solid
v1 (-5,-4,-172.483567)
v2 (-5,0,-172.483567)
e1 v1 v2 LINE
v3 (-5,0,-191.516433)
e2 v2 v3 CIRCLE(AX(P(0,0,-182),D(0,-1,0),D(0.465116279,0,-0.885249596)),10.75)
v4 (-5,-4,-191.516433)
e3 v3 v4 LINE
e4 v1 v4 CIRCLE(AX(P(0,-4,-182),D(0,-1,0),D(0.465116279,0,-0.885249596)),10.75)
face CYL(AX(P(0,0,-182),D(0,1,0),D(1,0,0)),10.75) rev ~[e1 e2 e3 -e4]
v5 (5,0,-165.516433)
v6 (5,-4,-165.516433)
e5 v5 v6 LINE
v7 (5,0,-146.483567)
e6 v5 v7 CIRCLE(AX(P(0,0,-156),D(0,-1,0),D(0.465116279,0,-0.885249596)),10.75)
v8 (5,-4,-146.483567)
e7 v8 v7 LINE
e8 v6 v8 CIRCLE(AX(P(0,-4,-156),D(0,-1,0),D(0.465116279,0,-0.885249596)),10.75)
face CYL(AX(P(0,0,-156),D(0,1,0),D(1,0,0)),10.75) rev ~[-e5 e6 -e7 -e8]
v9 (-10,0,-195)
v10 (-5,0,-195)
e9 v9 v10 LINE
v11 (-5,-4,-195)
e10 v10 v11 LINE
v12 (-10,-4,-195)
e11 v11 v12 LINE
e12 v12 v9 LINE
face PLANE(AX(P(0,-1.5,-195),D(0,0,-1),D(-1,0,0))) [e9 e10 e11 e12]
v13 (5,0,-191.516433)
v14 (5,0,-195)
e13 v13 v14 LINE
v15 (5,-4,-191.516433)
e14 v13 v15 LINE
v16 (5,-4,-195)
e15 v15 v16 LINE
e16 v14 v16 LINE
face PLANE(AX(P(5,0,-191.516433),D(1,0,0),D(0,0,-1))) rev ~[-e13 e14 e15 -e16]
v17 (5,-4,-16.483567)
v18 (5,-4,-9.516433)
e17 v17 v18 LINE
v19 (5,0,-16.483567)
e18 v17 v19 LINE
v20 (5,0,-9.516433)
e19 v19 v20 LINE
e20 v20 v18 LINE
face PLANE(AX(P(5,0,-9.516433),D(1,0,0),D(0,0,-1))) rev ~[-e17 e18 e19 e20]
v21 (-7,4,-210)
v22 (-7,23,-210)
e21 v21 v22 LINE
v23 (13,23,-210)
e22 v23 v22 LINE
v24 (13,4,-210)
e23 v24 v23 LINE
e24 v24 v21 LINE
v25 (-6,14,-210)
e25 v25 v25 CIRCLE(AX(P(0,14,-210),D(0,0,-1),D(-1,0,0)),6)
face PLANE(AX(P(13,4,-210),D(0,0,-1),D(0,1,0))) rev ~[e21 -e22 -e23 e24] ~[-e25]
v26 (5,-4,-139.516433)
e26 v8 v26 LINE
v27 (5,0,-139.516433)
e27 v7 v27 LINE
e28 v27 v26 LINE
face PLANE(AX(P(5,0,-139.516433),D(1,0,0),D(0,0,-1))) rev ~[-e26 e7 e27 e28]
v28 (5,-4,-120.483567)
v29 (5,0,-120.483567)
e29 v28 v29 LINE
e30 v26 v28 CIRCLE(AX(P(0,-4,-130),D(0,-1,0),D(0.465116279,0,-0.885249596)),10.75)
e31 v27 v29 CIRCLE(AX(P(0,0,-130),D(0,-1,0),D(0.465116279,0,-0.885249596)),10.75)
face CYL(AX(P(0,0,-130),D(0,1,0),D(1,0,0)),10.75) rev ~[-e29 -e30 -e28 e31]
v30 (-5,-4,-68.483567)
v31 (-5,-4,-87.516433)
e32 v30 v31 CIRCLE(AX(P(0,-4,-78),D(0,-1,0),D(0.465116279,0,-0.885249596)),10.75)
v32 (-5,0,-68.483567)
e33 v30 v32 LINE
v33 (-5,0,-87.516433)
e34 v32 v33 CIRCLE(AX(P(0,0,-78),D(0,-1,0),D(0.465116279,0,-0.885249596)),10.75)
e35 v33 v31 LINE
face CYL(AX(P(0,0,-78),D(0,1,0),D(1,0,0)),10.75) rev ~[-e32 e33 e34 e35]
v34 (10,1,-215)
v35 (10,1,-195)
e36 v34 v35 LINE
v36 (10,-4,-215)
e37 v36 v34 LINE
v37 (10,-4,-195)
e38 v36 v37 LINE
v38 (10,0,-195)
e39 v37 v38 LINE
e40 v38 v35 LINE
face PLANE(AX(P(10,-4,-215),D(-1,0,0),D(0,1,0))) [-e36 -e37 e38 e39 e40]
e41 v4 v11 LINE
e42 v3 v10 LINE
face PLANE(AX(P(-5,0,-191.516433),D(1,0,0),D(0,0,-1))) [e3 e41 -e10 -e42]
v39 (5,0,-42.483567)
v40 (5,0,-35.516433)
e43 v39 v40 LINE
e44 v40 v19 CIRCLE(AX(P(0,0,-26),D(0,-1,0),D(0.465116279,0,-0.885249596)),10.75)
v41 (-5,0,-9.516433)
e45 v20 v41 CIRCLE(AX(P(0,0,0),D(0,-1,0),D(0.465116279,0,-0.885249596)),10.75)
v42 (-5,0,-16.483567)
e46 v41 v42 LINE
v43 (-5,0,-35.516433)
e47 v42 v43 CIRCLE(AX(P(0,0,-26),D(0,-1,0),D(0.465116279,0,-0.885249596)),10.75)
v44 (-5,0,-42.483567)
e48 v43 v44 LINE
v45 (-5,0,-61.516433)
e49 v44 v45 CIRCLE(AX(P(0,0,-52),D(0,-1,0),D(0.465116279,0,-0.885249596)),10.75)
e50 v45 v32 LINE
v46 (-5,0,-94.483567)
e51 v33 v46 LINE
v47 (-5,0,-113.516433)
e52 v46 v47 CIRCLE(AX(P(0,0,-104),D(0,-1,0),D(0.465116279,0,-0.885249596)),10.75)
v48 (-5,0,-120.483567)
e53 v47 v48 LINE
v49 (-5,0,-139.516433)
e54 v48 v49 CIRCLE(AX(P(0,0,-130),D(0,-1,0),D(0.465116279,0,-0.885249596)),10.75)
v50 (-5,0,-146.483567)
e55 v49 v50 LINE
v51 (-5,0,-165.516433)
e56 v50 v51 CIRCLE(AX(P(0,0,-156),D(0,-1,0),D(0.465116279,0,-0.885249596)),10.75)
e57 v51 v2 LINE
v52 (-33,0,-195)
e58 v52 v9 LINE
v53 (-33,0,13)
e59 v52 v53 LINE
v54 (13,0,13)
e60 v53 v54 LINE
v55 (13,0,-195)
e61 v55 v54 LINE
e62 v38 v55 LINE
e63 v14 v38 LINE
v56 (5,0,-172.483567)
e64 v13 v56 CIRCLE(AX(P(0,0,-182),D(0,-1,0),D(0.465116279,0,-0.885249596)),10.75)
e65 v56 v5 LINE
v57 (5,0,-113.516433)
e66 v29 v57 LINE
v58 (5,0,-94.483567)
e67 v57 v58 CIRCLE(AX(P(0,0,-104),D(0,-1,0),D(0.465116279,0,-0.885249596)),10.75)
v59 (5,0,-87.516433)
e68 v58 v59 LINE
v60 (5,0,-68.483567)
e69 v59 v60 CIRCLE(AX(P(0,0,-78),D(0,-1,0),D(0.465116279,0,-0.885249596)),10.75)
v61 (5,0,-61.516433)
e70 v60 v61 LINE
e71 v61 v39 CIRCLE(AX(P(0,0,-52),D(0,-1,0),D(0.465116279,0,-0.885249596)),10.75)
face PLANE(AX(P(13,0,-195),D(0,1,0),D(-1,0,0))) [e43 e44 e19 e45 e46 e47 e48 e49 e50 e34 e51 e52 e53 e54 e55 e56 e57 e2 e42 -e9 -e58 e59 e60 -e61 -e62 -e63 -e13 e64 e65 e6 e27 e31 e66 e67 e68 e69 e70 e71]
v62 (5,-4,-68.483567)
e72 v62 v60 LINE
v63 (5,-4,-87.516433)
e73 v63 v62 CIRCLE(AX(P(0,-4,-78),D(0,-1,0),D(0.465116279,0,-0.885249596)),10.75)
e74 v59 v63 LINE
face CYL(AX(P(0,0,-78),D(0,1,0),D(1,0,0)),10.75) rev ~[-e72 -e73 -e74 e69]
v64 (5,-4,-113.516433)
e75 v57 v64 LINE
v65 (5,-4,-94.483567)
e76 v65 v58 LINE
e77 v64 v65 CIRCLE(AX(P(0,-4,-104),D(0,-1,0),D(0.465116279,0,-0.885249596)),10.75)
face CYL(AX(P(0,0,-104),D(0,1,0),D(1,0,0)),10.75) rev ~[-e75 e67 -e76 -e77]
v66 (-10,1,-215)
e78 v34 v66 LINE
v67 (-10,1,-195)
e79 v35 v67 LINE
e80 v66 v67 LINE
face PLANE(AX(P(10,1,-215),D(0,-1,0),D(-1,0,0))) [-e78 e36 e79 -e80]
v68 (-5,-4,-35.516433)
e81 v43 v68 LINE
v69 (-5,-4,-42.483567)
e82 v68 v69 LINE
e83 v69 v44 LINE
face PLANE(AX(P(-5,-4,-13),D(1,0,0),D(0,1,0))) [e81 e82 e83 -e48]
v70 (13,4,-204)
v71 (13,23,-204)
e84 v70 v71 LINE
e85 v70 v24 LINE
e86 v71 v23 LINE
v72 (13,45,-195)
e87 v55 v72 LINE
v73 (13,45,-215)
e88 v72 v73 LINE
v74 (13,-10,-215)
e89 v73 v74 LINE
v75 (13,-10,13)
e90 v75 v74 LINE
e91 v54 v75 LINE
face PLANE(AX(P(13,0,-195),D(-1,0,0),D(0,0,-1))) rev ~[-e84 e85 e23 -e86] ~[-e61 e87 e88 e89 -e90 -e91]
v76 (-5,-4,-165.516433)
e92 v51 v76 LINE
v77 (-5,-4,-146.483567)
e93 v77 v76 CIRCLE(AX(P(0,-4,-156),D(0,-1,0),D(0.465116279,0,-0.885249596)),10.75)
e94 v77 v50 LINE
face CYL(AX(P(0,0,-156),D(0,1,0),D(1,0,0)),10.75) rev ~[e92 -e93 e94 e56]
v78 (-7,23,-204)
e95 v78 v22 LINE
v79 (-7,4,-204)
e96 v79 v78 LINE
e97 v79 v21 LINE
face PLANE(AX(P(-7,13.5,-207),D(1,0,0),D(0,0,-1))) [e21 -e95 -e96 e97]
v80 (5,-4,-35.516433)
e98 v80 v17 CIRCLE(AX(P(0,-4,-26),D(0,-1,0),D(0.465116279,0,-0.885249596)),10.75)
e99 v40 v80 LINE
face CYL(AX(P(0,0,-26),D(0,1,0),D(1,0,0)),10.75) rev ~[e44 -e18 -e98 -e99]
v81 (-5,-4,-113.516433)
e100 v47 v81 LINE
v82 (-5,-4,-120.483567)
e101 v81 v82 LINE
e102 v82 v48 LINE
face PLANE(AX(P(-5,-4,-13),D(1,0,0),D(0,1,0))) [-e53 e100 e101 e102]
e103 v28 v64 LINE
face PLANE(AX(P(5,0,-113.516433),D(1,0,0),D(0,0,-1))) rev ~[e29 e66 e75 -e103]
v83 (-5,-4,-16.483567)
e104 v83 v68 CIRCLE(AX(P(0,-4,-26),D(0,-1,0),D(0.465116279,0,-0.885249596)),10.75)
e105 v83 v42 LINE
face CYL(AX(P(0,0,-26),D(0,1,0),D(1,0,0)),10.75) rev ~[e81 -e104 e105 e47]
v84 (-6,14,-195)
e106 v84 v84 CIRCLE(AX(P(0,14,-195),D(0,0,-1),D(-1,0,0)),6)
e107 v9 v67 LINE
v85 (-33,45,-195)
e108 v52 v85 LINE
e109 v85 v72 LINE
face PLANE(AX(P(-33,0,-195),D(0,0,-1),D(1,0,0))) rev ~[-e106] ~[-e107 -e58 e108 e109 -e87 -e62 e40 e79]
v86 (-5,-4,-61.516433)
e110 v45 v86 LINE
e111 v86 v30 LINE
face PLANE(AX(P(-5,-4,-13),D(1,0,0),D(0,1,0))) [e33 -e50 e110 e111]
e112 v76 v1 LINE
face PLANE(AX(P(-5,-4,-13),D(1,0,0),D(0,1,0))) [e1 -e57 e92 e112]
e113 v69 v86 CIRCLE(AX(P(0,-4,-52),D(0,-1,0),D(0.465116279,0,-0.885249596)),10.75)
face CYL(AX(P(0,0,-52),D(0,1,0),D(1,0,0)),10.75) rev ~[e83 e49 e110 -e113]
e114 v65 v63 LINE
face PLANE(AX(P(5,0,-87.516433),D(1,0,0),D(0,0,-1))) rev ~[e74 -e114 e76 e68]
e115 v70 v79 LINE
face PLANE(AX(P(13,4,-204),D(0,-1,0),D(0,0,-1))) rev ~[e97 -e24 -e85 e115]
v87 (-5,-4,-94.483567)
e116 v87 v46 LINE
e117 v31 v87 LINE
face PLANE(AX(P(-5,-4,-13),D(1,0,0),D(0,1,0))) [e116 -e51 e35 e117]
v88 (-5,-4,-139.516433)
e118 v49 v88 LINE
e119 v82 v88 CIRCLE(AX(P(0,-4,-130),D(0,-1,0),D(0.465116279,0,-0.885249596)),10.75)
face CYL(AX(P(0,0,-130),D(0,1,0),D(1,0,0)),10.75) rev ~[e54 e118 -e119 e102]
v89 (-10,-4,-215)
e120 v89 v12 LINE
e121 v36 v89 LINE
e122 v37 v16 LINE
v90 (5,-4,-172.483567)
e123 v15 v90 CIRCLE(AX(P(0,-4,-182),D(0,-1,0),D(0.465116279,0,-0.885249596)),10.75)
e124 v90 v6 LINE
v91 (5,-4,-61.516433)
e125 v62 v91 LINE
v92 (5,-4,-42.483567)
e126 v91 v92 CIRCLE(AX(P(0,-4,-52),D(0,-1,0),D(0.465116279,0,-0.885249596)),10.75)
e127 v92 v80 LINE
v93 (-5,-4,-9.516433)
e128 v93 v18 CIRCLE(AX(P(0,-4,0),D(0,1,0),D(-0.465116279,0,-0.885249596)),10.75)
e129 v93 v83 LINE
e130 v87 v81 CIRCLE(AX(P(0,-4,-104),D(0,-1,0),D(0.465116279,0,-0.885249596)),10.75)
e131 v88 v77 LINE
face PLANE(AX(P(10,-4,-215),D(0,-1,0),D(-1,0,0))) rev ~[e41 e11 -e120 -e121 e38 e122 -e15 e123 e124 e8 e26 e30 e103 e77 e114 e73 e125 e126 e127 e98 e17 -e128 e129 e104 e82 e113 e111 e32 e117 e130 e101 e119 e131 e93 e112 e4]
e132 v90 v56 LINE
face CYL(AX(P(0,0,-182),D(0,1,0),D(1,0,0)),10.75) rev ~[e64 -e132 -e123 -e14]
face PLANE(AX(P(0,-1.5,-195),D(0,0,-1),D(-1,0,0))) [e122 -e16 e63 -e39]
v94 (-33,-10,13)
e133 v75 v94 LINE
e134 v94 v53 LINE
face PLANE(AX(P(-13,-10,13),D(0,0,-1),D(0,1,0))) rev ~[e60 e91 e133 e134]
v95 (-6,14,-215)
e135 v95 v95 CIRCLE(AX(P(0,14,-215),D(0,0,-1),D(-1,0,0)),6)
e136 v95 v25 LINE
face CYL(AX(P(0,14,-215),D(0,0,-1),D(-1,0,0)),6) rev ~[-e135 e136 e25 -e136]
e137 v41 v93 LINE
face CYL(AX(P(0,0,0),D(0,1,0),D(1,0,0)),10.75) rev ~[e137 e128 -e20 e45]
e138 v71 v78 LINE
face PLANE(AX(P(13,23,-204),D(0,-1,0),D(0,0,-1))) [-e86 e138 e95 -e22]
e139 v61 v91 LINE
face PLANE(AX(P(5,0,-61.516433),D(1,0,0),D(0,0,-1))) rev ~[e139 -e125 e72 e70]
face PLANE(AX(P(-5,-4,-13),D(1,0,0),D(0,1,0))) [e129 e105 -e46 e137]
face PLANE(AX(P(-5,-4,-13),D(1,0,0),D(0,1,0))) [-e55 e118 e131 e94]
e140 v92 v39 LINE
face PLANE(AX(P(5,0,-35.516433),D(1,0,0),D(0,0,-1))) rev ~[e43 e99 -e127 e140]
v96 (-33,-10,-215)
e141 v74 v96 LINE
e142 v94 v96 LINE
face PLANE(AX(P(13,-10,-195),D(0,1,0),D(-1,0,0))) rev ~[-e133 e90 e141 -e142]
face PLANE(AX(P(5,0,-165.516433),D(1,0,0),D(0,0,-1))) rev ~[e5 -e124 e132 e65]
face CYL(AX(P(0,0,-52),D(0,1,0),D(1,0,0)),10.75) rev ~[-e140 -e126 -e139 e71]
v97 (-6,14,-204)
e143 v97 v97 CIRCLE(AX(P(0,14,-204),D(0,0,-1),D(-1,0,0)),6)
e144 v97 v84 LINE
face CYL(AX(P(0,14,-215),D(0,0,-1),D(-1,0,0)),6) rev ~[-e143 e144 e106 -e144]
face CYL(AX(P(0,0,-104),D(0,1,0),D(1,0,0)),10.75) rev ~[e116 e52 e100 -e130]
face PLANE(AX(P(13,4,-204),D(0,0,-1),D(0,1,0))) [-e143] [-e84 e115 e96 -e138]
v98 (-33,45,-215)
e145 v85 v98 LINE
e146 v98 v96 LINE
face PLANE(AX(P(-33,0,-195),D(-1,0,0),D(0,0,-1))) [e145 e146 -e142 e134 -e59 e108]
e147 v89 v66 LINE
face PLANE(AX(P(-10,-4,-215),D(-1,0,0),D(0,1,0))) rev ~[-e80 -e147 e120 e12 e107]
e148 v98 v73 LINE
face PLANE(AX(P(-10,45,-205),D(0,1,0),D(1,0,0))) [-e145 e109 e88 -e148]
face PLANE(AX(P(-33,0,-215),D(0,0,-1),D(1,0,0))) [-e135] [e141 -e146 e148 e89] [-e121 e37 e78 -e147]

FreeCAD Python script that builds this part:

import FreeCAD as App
import Part
import Sketcher

V = App.Vector
Q = App.Units.Quantity


def add_polygon(sketch, points):
    """Adds a closed chain of lines whose ends are joined by coincident constraints."""
    first, n = sketch.GeometryCount, len(points)
    for a, b in zip(points, points[1:] + points[:1]):
        sketch.addGeometry(Part.LineSegment(App.Vector(*a, 0), App.Vector(*b, 0)), False)
    for i in range(n):
        sketch.addConstraint(Sketcher.Constraint("Coincident", first + i, 2, first + (i + 1) % n, 1))

doc = App.newDocument("Part")
params = doc.addObject("Spreadsheet::Sheet", "Params")
for row, (alias, value) in enumerate([
    ("sketch1_width", "26 mm"),
    ("pad1_length", "10 mm"),
    ("sketch2_diameter", "21.5 mm"),
    ("pocket1_length", "4 mm"),
    ("sketch3_width", "10 mm"),
    ("pocket2_length", "4 mm"),
    ("linearpattern_pitch", "26 mm"),
    ("sketch4_width", "10 mm"),
    ("sketch4_height", "4 mm"),
    ("sketch5_width", "10 mm"),
    ("sketch5_height", "208 mm"),
    ("pad2_length", "20 mm"),
    ("sketch6_width", "46 mm"),
    ("sketch6_height", "10 mm"),
    ("pad3_length", "20 mm"),
    ("sketch7_width", "46 mm"),
    ("sketch7_height", "20 mm"),
    ("pad4_length", "45 mm"),
    ("sketch8_width", "20 mm"),
    ("sketch8_height", "5 mm"),
    ("pocket4_length", "20 mm"),
    ("sketch9_diameter", "12 mm"),
    ("pocket5_length", "45 mm"),
    ("sketch10_width", "19 mm"),
    ("sketch10_height", "6 mm"),
    ("pocket6_length", "20 mm"),
], start=1):
    params.set(f"A{row}", alias)
    params.set(f"B{row}", "=" + value)
    params.setAlias(f"B{row}", alias)

body = doc.addObject("PartDesign::Body", "Body")

# Sketch on XZ plane
sketch1 = body.newObject("Sketcher::SketchObject", "Sketch")
sketch1.AttachmentSupport = (doc.getObject("XZ_Plane"), [""])
sketch1.MapMode = "FlatFace"
add_polygon(sketch1, [(-13, -13), (-13, 13), (13, 13), (13, -13)])  # lines 0-3
sketch1.addConstraint([
    Sketcher.Constraint("Vertical", 0),
    Sketcher.Constraint("Horizontal", 1),
    Sketcher.Constraint("Vertical", 2),
    Sketcher.Constraint("Horizontal", 3),
    Sketcher.Constraint("Symmetric", 0, 2, 2, 2, -1, 1),
    Sketcher.Constraint("Equal", 3, 0),
    Sketcher.Constraint("DistanceX", 1, 1, 1, 2, Q("26 mm")),
])
sketch1.setExpression("Constraints[10]", "Params.sketch1_width")
pad1 = body.newObject("PartDesign::Pad", "Pad")
pad1.Profile = sketch1
pad1.setExpression("Length", "Params.pad1_length")

# Sketch on XZ plane
sketch2 = body.newObject("Sketcher::SketchObject", "Sketch001")
sketch2.AttachmentSupport = (doc.getObject("XZ_Plane"), [""])
sketch2.MapMode = "FlatFace"
sketch2.addGeometry(Part.Circle(V(0, 0, 0), V(0, 0, 1), 11), False)
sketch2.addConstraint([
    Sketcher.Constraint("Coincident", 0, 3, -1, 1),
    Sketcher.Constraint("Diameter", 0, Q("21.5 mm")),
])
sketch2.setExpression("Constraints[1]", "Params.sketch2_diameter")
pocket1 = body.newObject("PartDesign::Pocket", "Pocket")
pocket1.Profile = sketch2
pocket1.setExpression("Length", "Params.pocket1_length")
pocket1.Reversed = True

# Sketch on XZ plane
sketch3 = body.newObject("Sketcher::SketchObject", "Sketch002")
sketch3.AttachmentSupport = (doc.getObject("XZ_Plane"), [""])
sketch3.MapMode = "FlatFace"
add_polygon(sketch3, [(-5, -13), (-5, -9.5), (5, -9.5), (5, -13)])  # lines 0-3
sketch3.addConstraint([
    Sketcher.Constraint("Vertical", 0),
    Sketcher.Constraint("Horizontal", 1),
    Sketcher.Constraint("Vertical", 2),
    Sketcher.Constraint("Horizontal", 3),
    Sketcher.Constraint("DistanceX", 1, 1, 1, 2, Q("10 mm")),
    Sketcher.Constraint("DistanceX", 0, 2, -1, 1, Q("5 mm")),
    Sketcher.Constraint("DistanceY", 2, 2, -1, 1, Q("13 mm")),
    Sketcher.Constraint("DistanceY", 0, 1, 0, 2, Q("3.483567 mm")),
])
sketch3.setExpression("Constraints[8]", "Params.sketch3_width")
pocket2 = body.newObject("PartDesign::Pocket", "Pocket001")
pocket2.Profile = sketch3
pocket2.setExpression("Length", "Params.pocket2_length")
pocket2.Reversed = True
doc.recompute()

linearpattern = body.newObject("PartDesign::LinearPattern", "LinearPattern")
linearpattern.Originals = [pad1, pocket1, pocket2]
linearpattern.Direction = (doc.getObject("Z_Axis"), [""])
linearpattern.Mode = "offset"
linearpattern.setExpression("Offset", "Params.linearpattern_pitch")
linearpattern.Occurrences = 8
linearpattern.Reversed = True
body.Tip = linearpattern

# Sketch on XY plane
sketch4 = body.newObject("Sketcher::SketchObject", "Sketch003")
sketch4.AttachmentSupport = (doc.getObject("XY_Plane"), [""])
sketch4.MapMode = "FlatFace"
sketch4.AttachmentOffset = App.Placement(V(0, 0, -13), App.Rotation())
add_polygon(sketch4, [(-5, 0), (-5, -4), (5, -4), (5, 0)])  # lines 0-3
sketch4.addConstraint([
    Sketcher.Constraint("Vertical", 0),
    Sketcher.Constraint("Horizontal", 1),
    Sketcher.Constraint("Vertical", 2),
    Sketcher.Constraint("Horizontal", 3),
    Sketcher.Constraint("Symmetric", 2, 2, 3, 2, -1, 1),
    Sketcher.Constraint("DistanceX", 1, 1, 1, 2, Q("10 mm")),
    Sketcher.Constraint("DistanceY", 0, 2, 0, 1, Q("4 mm")),
])
sketch4.setExpression("Constraints[9]", "Params.sketch4_width")
sketch4.setExpression("Constraints[10]", "Params.sketch4_height")
pocket3 = body.newObject("PartDesign::Pocket", "Pocket002")
pocket3.Profile = sketch4
pocket3.Type = "ThroughAll"

# Sketch on YZ plane
sketch5 = body.newObject("Sketcher::SketchObject", "Sketch004")
sketch5.AttachmentSupport = (doc.getObject("YZ_Plane"), [""])
sketch5.MapMode = "FlatFace"
sketch5.AttachmentOffset = App.Placement(V(0, 0, -13), App.Rotation())
add_polygon(sketch5, [(0, -195), (-10, -195), (-10, 13), (0, 13)])  # lines 0-3
sketch5.addConstraint([
    Sketcher.Constraint("Horizontal", 0),
    Sketcher.Constraint("Vertical", 1),
    Sketcher.Constraint("Horizontal", 2),
    Sketcher.Constraint("Vertical", 3),
    Sketcher.Constraint("PointOnObject", 2, 2, -2),
    Sketcher.Constraint("DistanceX", 0, 2, 0, 1, Q("10 mm")),
    Sketcher.Constraint("DistanceY", 1, 1, 1, 2, Q("208 mm")),
    Sketcher.Constraint("DistanceY", 0, 2, -1, 1, Q("195 mm")),
])
sketch5.setExpression("Constraints[9]", "Params.sketch5_width")
sketch5.setExpression("Constraints[10]", "Params.sketch5_height")
pad2 = body.newObject("PartDesign::Pad", "Pad001")
pad2.Profile = sketch5
pad2.setExpression("Length", "Params.pad2_length")
pad2.Reversed = True

# Sketch on XY plane
sketch6 = body.newObject("Sketcher::SketchObject", "Sketch005")
sketch6.AttachmentSupport = (doc.getObject("XY_Plane"), [""])
sketch6.MapMode = "FlatFace"
sketch6.AttachmentOffset = App.Placement(V(0, 0, -195), App.Rotation())
add_polygon(sketch6, [(13, 0), (13, -10), (-33, -10), (-33, 0)])  # lines 0-3
sketch6.addConstraint([
    Sketcher.Constraint("Vertical", 0),
    Sketcher.Constraint("Horizontal", 1),
    Sketcher.Constraint("Vertical", 2),
    Sketcher.Constraint("Horizontal", 3),
    Sketcher.Constraint("PointOnObject", 2, 2, -1),
    Sketcher.Constraint("DistanceX", 1, 2, 1, 1, Q("46 mm")),
    Sketcher.Constraint("DistanceY", 0, 2, 0, 1, Q("10 mm")),
    Sketcher.Constraint("DistanceX", -1, 1, 0, 2, Q("13 mm")),
])
sketch6.setExpression("Constraints[9]", "Params.sketch6_width")
sketch6.setExpression("Constraints[10]", "Params.sketch6_height")
pad3 = body.newObject("PartDesign::Pad", "Pad002")
pad3.Profile = sketch6
pad3.setExpression("Length", "Params.pad3_length")
pad3.Reversed = True

# Sketch on XZ plane
sketch7 = body.newObject("Sketcher::SketchObject", "Sketch006")
sketch7.AttachmentSupport = (doc.getObject("XZ_Plane"), [""])
sketch7.MapMode = "FlatFace"
add_polygon(sketch7, [(-33, -215), (-33, -195), (13, -195), (13, -215)])  # lines 0-3
sketch7.addConstraint([
    Sketcher.Constraint("Vertical", 0),
    Sketcher.Constraint("Horizontal", 1),
    Sketcher.Constraint("Vertical", 2),
    Sketcher.Constraint("Horizontal", 3),
    Sketcher.Constraint("DistanceX", 1, 1, 1, 2, Q("46 mm")),
    Sketcher.Constraint("DistanceY", 0, 1, 0, 2, Q("20 mm")),
    Sketcher.Constraint("DistanceX", 0, 2, -1, 1, Q("33 mm")),
    Sketcher.Constraint("DistanceY", 0, 2, -1, 1, Q("195 mm")),
])
sketch7.setExpression("Constraints[8]", "Params.sketch7_width")
sketch7.setExpression("Constraints[9]", "Params.sketch7_height")
pad4 = body.newObject("PartDesign::Pad", "Pad003")
pad4.Profile = sketch7
pad4.setExpression("Length", "Params.pad4_length")
pad4.Reversed = True

# Sketch on XY plane
sketch8 = body.newObject("Sketcher::SketchObject", "Sketch007")
sketch8.AttachmentSupport = (doc.getObject("XY_Plane"), [""])
sketch8.MapMode = "FlatFace"
sketch8.AttachmentOffset = App.Placement(V(0, 0, -215), App.Rotation())
add_polygon(sketch8, [(10, 1), (10, -4), (-10, -4), (-10, 1)])  # lines 0-3
sketch8.addConstraint([
    Sketcher.Constraint("Vertical", 0),
    Sketcher.Constraint("Horizontal", 1),
    Sketcher.Constraint("Vertical", 2),
    Sketcher.Constraint("Horizontal", 3),
    Sketcher.Constraint("DistanceX", 1, 2, 1, 1, Q("20 mm")),
    Sketcher.Constraint("DistanceY", 0, 2, 0, 1, Q("5 mm")),
    Sketcher.Constraint("DistanceX", -1, 1, 0, 2, Q("10 mm")),
    Sketcher.Constraint("DistanceY", 0, 2, -1, 1, Q("4 mm")),
])
sketch8.setExpression("Constraints[8]", "Params.sketch8_width")
sketch8.setExpression("Constraints[9]", "Params.sketch8_height")
pocket4 = body.newObject("PartDesign::Pocket", "Pocket003")
pocket4.Profile = sketch8
pocket4.setExpression("Length", "Params.pocket4_length")
pocket4.Reversed = True

# Sketch on XY plane
sketch9 = body.newObject("Sketcher::SketchObject", "Sketch008")
sketch9.AttachmentSupport = (doc.getObject("XY_Plane"), [""])
sketch9.MapMode = "FlatFace"
sketch9.AttachmentOffset = App.Placement(V(0, 0, -215), App.Rotation())
sketch9.addGeometry(Part.Circle(V(0, 14, 0), V(0, 0, 1), 6), False)
sketch9.addConstraint([
    Sketcher.Constraint("PointOnObject", 0, 3, -2),
    Sketcher.Constraint("Diameter", 0, Q("12 mm")),
    Sketcher.Constraint("DistanceY", -1, 1, 0, 3, Q("14 mm")),
])
sketch9.setExpression("Constraints[1]", "Params.sketch9_diameter")
pocket5 = body.newObject("PartDesign::Pocket", "Pocket004")
pocket5.Profile = sketch9
pocket5.setExpression("Length", "Params.pocket5_length")
pocket5.Reversed = True

# Sketch on YZ plane
sketch10 = body.newObject("Sketcher::SketchObject", "Sketch009")
sketch10.AttachmentSupport = (doc.getObject("YZ_Plane"), [""])
sketch10.MapMode = "FlatFace"
sketch10.AttachmentOffset = App.Placement(V(0, 0, 13), App.Rotation())
add_polygon(sketch10, [(23, -204), (4, -204), (4, -210), (23, -210)])  # lines 0-3
sketch10.addConstraint([
    Sketcher.Constraint("Horizontal", 0),
    Sketcher.Constraint("Vertical", 1),
    Sketcher.Constraint("Horizontal", 2),
    Sketcher.Constraint("Vertical", 3),
    Sketcher.Constraint("DistanceX", 0, 2, 0, 1, Q("19 mm")),
    Sketcher.Constraint("DistanceY", 1, 2, 1, 1, Q("6 mm")),
    Sketcher.Constraint("DistanceX", -1, 1, 0, 2, Q("4 mm")),
    Sketcher.Constraint("DistanceY", 0, 2, -1, 1, Q("204 mm")),
])
sketch10.setExpression("Constraints[8]", "Params.sketch10_width")
sketch10.setExpression("Constraints[9]", "Params.sketch10_height")
pocket6 = body.newObject("PartDesign::Pocket", "Pocket005")
pocket6.Profile = sketch10
pocket6.setExpression("Length", "Params.pocket6_length")

doc.recompute()
